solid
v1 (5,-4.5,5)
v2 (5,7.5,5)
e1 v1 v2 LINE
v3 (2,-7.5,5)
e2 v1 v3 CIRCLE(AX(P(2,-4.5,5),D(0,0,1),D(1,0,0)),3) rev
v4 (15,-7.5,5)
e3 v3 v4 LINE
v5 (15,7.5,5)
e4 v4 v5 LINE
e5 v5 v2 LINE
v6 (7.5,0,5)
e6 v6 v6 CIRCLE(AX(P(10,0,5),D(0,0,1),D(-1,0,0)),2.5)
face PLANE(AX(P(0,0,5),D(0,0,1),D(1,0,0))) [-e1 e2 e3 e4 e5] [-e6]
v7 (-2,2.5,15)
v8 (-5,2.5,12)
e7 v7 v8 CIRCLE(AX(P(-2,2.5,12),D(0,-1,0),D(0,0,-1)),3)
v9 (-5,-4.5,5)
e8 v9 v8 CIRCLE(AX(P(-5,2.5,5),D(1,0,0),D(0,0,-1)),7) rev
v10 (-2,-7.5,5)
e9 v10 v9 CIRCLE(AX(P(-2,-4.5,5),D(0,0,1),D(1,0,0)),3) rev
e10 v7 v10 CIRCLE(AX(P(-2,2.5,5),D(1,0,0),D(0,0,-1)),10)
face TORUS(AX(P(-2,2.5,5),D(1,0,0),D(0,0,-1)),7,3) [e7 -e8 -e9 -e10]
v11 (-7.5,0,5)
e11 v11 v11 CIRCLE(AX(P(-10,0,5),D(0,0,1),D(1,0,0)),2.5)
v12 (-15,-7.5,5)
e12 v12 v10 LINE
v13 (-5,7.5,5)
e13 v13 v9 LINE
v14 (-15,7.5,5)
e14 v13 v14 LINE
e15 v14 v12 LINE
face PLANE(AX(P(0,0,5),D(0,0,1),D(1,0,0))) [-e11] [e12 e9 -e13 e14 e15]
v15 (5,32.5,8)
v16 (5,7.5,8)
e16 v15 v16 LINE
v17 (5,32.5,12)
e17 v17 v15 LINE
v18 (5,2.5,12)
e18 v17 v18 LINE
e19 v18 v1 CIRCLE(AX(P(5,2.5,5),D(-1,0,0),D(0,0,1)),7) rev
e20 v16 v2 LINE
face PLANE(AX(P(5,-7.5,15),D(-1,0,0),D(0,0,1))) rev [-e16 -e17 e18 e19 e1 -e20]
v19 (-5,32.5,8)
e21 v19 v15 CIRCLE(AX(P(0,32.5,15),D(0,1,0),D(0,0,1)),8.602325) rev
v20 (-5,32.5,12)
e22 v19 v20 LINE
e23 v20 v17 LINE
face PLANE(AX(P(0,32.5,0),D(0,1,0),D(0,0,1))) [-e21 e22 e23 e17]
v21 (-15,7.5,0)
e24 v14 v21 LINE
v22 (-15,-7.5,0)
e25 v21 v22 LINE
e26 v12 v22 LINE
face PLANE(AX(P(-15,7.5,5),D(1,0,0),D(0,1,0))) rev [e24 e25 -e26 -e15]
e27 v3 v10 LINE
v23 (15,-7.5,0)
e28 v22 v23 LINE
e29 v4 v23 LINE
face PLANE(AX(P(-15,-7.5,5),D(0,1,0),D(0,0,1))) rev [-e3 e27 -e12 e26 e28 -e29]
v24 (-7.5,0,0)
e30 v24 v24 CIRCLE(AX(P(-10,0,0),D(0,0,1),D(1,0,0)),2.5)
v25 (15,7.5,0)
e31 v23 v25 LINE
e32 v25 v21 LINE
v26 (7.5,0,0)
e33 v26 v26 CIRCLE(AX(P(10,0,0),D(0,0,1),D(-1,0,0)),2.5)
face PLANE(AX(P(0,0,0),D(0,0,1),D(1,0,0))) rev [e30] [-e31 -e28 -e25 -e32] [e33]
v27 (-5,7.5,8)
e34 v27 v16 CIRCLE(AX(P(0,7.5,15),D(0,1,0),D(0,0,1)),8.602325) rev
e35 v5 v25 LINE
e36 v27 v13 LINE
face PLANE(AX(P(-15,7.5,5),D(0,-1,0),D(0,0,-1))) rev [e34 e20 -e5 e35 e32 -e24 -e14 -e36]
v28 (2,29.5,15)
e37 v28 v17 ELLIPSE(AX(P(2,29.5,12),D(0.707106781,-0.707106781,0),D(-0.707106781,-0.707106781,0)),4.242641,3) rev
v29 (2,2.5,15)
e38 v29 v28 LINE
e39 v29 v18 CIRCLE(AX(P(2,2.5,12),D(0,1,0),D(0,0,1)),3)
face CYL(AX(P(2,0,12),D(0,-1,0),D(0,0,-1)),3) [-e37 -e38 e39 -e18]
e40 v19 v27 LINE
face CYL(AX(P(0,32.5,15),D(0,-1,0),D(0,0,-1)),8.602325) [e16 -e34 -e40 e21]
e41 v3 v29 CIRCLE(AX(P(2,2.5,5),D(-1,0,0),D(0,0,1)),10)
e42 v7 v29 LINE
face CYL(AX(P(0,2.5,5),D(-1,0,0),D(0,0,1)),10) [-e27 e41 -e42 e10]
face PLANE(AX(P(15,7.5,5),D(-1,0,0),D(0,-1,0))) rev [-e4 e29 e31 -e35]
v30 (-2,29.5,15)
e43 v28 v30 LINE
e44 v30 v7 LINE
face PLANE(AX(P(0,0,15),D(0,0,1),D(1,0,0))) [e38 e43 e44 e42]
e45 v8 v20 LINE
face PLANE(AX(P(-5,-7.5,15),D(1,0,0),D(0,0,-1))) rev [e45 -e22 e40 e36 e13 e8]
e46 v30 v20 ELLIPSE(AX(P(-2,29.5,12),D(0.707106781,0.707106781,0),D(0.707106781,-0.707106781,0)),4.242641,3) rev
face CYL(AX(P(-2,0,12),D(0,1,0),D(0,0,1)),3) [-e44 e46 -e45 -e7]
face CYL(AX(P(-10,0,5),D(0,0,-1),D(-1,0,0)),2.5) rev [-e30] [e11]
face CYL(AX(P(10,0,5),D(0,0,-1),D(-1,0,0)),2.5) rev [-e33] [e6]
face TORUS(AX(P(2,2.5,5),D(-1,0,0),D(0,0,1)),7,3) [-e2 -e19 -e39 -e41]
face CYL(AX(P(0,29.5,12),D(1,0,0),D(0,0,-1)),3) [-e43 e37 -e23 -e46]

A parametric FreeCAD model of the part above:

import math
import FreeCAD as App
import Part
import Sketcher
from FreeCAD import Vector
Q = App.Units.Quantity


def edges_at(feature, points):
    """Names of the edges that pass closest to the given points."""
    edges = feature.Shape.Edges
    near = lambda p: min(range(len(edges)), key=lambda i: edges[i].distToShape(Part.Vertex(*p))[0])
    return sorted({f"Edge{near(p) + 1}" for p in points})

doc = App.newDocument("Part")
body = doc.addObject("PartDesign::Body", "Body")

sketch1 = doc.addObject("Sketcher::SketchObject", "Sketch")
body.addObject(sketch1)
sketch1.AttachmentSupport = (doc.XY_Plane, [""])
sketch1.MapMode = "FlatFace"
sketch1.addGeometry(Part.LineSegment(Vector(-15, 7.5, 0), Vector(-15, -7.5, 0)), False)
sketch1.addGeometry(Part.LineSegment(Vector(-15, -7.5, 0), Vector(15, -7.5, 0)), False)
sketch1.addGeometry(Part.LineSegment(Vector(15, -7.5, 0), Vector(15, 7.5, 0)), False)
sketch1.addGeometry(Part.LineSegment(Vector(15, 7.5, 0), Vector(-15, 7.5, 0)), False)
sketch1.addGeometry(Part.Circle(Vector(-10, 0, 0), Vector(0, 0, 1), 2.5), False)
sketch1.addGeometry(Part.Circle(Vector(10, 0, 0), Vector(0, 0, 1), 2.5), False)
sketch1.addConstraint(Sketcher.Constraint("Coincident", 0, 2, 1, 1))
sketch1.addConstraint(Sketcher.Constraint("Coincident", 1, 2, 2, 1))
sketch1.addConstraint(Sketcher.Constraint("Coincident", 2, 2, 3, 1))
sketch1.addConstraint(Sketcher.Constraint("Coincident", 3, 2, 0, 1))
sketch1.addConstraint(Sketcher.Constraint("Vertical", 0))
sketch1.addConstraint(Sketcher.Constraint("Horizontal", 1))
sketch1.addConstraint(Sketcher.Constraint("Vertical", 2))
sketch1.addConstraint(Sketcher.Constraint("Horizontal", 3))
sketch1.addConstraint(Sketcher.Constraint("Equal", 4, 5))
sketch1.addConstraint(Sketcher.Constraint("Symmetric", 4, 3, 5, 3, -1, 1))
sketch1.addConstraint(Sketcher.Constraint("Symmetric", 0, 2, 2, 2, -1, 1))
sketch1.addConstraint(Sketcher.Constraint("PointOnObject", 4, 3, -1))
sketch1.addConstraint(Sketcher.Constraint("Diameter", 4, Q("5 mm")))
sketch1.addConstraint(Sketcher.Constraint("DistanceX", 1, 1, 1, 2, Q("30 mm")))
sketch1.addConstraint(Sketcher.Constraint("DistanceY", 0, 2, 0, 1, Q("15 mm")))
sketch1.addConstraint(Sketcher.Constraint("DistanceX", 4, 3, -1, 1, Q("10 mm")))
pad1 = doc.addObject("PartDesign::Pad", "Pad")
body.addObject(pad1)
pad1.Profile = sketch1
pad1.Length = 5

sketch2 = doc.addObject("Sketcher::SketchObject", "Sketch001")
body.addObject(sketch2)
sketch2.AttachmentSupport = (doc.XY_Plane, [""])
sketch2.MapMode = "FlatFace"
sketch2.AttachmentOffset = App.Placement(Vector(0, 0, 5), App.Rotation())
sketch2.addGeometry(Part.LineSegment(Vector(-5, 8, 0), Vector(-5, -8, 0)), False)
sketch2.addGeometry(Part.LineSegment(Vector(-5, -8, 0), Vector(5, -8, 0)), False)
sketch2.addGeometry(Part.LineSegment(Vector(5, -8, 0), Vector(5, 8, 0)), False)
sketch2.addGeometry(Part.LineSegment(Vector(5, 8, 0), Vector(-5, 8, 0)), False)
sketch2.addConstraint(Sketcher.Constraint("Coincident", 0, 2, 1, 1))
sketch2.addConstraint(Sketcher.Constraint("Coincident", 1, 2, 2, 1))
sketch2.addConstraint(Sketcher.Constraint("Coincident", 2, 2, 3, 1))
sketch2.addConstraint(Sketcher.Constraint("Coincident", 3, 2, 0, 1))
sketch2.addConstraint(Sketcher.Constraint("Vertical", 0))
sketch2.addConstraint(Sketcher.Constraint("Horizontal", 1))
sketch2.addConstraint(Sketcher.Constraint("Vertical", 2))
sketch2.addConstraint(Sketcher.Constraint("Horizontal", 3))
sketch2.addConstraint(Sketcher.Constraint("Symmetric", 0, 2, 2, 2, -1, 1))
sketch2.addConstraint(Sketcher.Constraint("DistanceX", 1, 1, 1, 2, Q("10 mm")))
sketch2.addConstraint(Sketcher.Constraint("DistanceY", 0, 2, 0, 1, Q("15 mm")))
pad2 = doc.addObject("PartDesign::Pad", "Pad001")
body.addObject(pad2)
pad2.Profile = sketch2
pad2.Length = 10

sketch3 = doc.addObject("Sketcher::SketchObject", "Sketch002")
body.addObject(sketch3)
sketch3.AttachmentSupport = (doc.XZ_Plane, [""])
sketch3.MapMode = "FlatFace"
sketch3.AttachmentOffset = App.Placement(Vector(0, 0, -7.5), App.Rotation())
sketch3.addGeometry(Part.ArcOfCircle(Part.Circle(Vector(0, 15, 0), Vector(0, 0, 1), 9), math.radians(-126), math.radians(-54)), False)
sketch3.addGeometry(Part.LineSegment(Vector(-5, 8, 0), Vector(-5, 15, 0)), False)
sketch3.addGeometry(Part.LineSegment(Vector(-5, 15, 0), Vector(5, 15, 0)), False)
sketch3.addGeometry(Part.LineSegment(Vector(5, 15, 0), Vector(5, 8, 0)), False)
sketch3.addConstraint(Sketcher.Constraint("Coincident", 0, 1, 1, 1))
sketch3.addConstraint(Sketcher.Constraint("Coincident", 1, 2, 2, 1))
sketch3.addConstraint(Sketcher.Constraint("Coincident", 2, 2, 3, 1))
sketch3.addConstraint(Sketcher.Constraint("Coincident", 3, 2, 0, 2))
sketch3.addConstraint(Sketcher.Constraint("Vertical", 1))
sketch3.addConstraint(Sketcher.Constraint("Horizontal", 2))
sketch3.addConstraint(Sketcher.Constraint("Vertical", 3))
sketch3.addConstraint(Sketcher.Constraint("Symmetric", 0, 1, 3, 2, -2))
sketch3.addConstraint(Sketcher.Constraint("Horizontal", 0, 3, 1, 2))
sketch3.addConstraint(Sketcher.Constraint("DistanceX", 2, 1, 2, 2, Q("10 mm")))
sketch3.addConstraint(Sketcher.Constraint("DistanceY", 1, 1, 1, 2, Q("7 mm")))
sketch3.addConstraint(Sketcher.Constraint("DistanceY", -1, 1, 0, 3, Q("15 mm")))
pad3 = doc.addObject("PartDesign::Pad", "Pad002")
body.addObject(pad3)
pad3.Profile = sketch3
pad3.Length = 25
pad3.Reversed = True
doc.recompute()

fillet = doc.addObject("PartDesign::Fillet", "Fillet")
body.addObject(fillet)
fillet.Base = (pad3, edges_at(pad3, [(0, -7.5, 15)]))
fillet.Radius = 10
doc.recompute()

fillet2 = doc.addObject("PartDesign::Fillet", "Fillet001")
body.addObject(fillet2)
fillet2.Base = (fillet, edges_at(fillet, [
    (-5, 17.5, 15),
    (0, 32.5, 15),
    (5, 17.5, 15),
    (5, -4.571, 12.071),
    (-5, -4.571, 12.071),
]))
fillet2.Radius = 3

doc.recompute()
